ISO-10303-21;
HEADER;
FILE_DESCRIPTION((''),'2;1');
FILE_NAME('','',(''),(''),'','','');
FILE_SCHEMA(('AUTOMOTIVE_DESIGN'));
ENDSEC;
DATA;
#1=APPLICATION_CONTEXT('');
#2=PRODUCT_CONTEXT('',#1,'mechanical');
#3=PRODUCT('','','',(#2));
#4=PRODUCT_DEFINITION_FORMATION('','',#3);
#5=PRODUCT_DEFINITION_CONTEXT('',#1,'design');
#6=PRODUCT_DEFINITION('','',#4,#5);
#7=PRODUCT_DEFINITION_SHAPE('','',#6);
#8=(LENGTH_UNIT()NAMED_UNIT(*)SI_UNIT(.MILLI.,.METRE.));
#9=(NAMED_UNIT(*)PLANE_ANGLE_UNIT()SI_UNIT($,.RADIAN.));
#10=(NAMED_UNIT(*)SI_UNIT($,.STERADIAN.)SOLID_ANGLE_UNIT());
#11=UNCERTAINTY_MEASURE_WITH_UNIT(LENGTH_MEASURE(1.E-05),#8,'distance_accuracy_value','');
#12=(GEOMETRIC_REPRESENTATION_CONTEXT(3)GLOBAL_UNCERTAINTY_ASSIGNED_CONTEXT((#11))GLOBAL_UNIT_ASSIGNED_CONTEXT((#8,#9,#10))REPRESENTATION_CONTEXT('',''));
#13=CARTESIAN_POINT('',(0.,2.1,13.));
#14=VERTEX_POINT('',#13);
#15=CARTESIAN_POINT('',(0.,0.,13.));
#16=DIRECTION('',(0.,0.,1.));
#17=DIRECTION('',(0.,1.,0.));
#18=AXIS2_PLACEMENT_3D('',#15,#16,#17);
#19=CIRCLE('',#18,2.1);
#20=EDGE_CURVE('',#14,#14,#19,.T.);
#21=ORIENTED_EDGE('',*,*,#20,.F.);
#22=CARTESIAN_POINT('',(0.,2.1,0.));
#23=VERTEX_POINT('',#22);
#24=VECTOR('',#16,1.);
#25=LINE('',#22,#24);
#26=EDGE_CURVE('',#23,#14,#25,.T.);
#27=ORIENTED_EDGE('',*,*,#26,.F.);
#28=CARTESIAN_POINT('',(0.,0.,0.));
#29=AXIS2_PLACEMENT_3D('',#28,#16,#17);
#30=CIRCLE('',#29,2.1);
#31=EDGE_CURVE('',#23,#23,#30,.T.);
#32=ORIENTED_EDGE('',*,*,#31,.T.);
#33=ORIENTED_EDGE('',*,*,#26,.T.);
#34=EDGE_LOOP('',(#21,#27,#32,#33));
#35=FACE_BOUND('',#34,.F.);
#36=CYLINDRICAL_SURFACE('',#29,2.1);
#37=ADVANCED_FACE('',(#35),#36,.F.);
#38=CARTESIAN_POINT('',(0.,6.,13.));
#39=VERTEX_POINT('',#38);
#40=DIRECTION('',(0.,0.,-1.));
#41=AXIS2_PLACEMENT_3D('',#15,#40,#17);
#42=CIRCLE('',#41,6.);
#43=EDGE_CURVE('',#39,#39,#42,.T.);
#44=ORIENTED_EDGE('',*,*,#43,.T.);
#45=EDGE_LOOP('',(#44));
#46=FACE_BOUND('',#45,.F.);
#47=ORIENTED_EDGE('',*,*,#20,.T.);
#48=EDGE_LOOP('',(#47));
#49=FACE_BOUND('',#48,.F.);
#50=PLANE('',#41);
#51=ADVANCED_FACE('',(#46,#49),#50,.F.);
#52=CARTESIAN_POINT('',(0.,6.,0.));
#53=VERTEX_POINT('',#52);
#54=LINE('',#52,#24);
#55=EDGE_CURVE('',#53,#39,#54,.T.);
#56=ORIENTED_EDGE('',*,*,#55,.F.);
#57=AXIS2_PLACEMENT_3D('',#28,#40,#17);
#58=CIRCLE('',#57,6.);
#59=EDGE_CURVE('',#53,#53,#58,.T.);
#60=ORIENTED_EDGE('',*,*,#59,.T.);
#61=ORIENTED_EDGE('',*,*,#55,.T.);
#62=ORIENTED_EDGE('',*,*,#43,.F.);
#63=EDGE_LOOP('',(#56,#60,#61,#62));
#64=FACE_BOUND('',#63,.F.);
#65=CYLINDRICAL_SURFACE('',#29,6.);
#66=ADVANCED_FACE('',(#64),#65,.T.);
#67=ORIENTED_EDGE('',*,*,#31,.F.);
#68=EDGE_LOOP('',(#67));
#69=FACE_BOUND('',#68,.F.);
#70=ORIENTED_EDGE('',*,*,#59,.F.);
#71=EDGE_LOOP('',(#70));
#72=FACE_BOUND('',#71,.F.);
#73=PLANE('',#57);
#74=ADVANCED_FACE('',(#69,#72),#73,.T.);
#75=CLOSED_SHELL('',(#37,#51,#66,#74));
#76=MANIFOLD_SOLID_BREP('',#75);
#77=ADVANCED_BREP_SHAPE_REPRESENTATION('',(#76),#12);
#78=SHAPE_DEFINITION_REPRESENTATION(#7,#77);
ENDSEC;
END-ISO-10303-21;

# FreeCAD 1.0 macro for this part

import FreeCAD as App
import Part
import Sketcher

V = App.Vector

doc = App.newDocument("Part")
body = doc.addObject("PartDesign::Body", "Body")

sketch1 = body.newObject("Sketcher::SketchObject", "Sketch")
sketch1.AttachmentSupport = (doc.getObject("YZ_Plane"), [""])
sketch1.MapMode = "FlatFace"
sketch1.addGeometry([
    Part.LineSegment(V(0, 0, 0), V(6, 0, 0)),
    Part.LineSegment(V(6, 0, 0), V(6, 13, 0)),
    Part.LineSegment(V(6, 13, 0), V(0, 13, 0)),
    Part.LineSegment(V(0, 13, 0), V(0, 0, 0)),
], False)
sketch1.addConstraint([
    Sketcher.Constraint("Coincident", 0, 2, 1, 1),
    Sketcher.Constraint("Coincident", 1, 2, 2, 1),
    Sketcher.Constraint("Coincident", 2, 2, 3, 1),
    Sketcher.Constraint("Coincident", 3, 2, 0, 1),
    Sketcher.Constraint("Horizontal", 0),
    Sketcher.Constraint("Vertical", 1),
    Sketcher.Constraint("Horizontal", 2),
    Sketcher.Constraint("Vertical", 3),
    Sketcher.Constraint("Coincident", 3, 2, -1, 1),
    Sketcher.Constraint("DistanceX", 0, 1, 0, 2, 6.0),
    Sketcher.Constraint("DistanceY", 1, 1, 1, 2, 13.0),
])
revolution = body.newObject("PartDesign::Revolution", "Revolution")
revolution.Profile = sketch1
revolution.ReferenceAxis = (sketch1, ["V_Axis"])
revolution.Angle = 360

sketch2 = body.newObject("Sketcher::SketchObject", "Sketch001")
sketch2.AttachmentSupport = (doc.getObject("XY_Plane"), [""])
sketch2.MapMode = "FlatFace"
sketch2.addGeometry(Part.Circle(V(0, 0, 0), V(0, 0, 1), 2.1), False)
sketch2.addConstraint([
    Sketcher.Constraint("Coincident", 0, 3, -1, 1),
    Sketcher.Constraint("Diameter", 0, 4.2),
])
doc.recompute()
hole = body.newObject("PartDesign::Hole", "Hole")
hole.Profile = sketch2
hole.ThreadType = "None"
hole.Diameter = 4.2
hole.DepthType = "Dimension"
hole.Depth = 13
hole.DrillPoint = "Flat"
hole.Reversed = True

doc.recompute()
